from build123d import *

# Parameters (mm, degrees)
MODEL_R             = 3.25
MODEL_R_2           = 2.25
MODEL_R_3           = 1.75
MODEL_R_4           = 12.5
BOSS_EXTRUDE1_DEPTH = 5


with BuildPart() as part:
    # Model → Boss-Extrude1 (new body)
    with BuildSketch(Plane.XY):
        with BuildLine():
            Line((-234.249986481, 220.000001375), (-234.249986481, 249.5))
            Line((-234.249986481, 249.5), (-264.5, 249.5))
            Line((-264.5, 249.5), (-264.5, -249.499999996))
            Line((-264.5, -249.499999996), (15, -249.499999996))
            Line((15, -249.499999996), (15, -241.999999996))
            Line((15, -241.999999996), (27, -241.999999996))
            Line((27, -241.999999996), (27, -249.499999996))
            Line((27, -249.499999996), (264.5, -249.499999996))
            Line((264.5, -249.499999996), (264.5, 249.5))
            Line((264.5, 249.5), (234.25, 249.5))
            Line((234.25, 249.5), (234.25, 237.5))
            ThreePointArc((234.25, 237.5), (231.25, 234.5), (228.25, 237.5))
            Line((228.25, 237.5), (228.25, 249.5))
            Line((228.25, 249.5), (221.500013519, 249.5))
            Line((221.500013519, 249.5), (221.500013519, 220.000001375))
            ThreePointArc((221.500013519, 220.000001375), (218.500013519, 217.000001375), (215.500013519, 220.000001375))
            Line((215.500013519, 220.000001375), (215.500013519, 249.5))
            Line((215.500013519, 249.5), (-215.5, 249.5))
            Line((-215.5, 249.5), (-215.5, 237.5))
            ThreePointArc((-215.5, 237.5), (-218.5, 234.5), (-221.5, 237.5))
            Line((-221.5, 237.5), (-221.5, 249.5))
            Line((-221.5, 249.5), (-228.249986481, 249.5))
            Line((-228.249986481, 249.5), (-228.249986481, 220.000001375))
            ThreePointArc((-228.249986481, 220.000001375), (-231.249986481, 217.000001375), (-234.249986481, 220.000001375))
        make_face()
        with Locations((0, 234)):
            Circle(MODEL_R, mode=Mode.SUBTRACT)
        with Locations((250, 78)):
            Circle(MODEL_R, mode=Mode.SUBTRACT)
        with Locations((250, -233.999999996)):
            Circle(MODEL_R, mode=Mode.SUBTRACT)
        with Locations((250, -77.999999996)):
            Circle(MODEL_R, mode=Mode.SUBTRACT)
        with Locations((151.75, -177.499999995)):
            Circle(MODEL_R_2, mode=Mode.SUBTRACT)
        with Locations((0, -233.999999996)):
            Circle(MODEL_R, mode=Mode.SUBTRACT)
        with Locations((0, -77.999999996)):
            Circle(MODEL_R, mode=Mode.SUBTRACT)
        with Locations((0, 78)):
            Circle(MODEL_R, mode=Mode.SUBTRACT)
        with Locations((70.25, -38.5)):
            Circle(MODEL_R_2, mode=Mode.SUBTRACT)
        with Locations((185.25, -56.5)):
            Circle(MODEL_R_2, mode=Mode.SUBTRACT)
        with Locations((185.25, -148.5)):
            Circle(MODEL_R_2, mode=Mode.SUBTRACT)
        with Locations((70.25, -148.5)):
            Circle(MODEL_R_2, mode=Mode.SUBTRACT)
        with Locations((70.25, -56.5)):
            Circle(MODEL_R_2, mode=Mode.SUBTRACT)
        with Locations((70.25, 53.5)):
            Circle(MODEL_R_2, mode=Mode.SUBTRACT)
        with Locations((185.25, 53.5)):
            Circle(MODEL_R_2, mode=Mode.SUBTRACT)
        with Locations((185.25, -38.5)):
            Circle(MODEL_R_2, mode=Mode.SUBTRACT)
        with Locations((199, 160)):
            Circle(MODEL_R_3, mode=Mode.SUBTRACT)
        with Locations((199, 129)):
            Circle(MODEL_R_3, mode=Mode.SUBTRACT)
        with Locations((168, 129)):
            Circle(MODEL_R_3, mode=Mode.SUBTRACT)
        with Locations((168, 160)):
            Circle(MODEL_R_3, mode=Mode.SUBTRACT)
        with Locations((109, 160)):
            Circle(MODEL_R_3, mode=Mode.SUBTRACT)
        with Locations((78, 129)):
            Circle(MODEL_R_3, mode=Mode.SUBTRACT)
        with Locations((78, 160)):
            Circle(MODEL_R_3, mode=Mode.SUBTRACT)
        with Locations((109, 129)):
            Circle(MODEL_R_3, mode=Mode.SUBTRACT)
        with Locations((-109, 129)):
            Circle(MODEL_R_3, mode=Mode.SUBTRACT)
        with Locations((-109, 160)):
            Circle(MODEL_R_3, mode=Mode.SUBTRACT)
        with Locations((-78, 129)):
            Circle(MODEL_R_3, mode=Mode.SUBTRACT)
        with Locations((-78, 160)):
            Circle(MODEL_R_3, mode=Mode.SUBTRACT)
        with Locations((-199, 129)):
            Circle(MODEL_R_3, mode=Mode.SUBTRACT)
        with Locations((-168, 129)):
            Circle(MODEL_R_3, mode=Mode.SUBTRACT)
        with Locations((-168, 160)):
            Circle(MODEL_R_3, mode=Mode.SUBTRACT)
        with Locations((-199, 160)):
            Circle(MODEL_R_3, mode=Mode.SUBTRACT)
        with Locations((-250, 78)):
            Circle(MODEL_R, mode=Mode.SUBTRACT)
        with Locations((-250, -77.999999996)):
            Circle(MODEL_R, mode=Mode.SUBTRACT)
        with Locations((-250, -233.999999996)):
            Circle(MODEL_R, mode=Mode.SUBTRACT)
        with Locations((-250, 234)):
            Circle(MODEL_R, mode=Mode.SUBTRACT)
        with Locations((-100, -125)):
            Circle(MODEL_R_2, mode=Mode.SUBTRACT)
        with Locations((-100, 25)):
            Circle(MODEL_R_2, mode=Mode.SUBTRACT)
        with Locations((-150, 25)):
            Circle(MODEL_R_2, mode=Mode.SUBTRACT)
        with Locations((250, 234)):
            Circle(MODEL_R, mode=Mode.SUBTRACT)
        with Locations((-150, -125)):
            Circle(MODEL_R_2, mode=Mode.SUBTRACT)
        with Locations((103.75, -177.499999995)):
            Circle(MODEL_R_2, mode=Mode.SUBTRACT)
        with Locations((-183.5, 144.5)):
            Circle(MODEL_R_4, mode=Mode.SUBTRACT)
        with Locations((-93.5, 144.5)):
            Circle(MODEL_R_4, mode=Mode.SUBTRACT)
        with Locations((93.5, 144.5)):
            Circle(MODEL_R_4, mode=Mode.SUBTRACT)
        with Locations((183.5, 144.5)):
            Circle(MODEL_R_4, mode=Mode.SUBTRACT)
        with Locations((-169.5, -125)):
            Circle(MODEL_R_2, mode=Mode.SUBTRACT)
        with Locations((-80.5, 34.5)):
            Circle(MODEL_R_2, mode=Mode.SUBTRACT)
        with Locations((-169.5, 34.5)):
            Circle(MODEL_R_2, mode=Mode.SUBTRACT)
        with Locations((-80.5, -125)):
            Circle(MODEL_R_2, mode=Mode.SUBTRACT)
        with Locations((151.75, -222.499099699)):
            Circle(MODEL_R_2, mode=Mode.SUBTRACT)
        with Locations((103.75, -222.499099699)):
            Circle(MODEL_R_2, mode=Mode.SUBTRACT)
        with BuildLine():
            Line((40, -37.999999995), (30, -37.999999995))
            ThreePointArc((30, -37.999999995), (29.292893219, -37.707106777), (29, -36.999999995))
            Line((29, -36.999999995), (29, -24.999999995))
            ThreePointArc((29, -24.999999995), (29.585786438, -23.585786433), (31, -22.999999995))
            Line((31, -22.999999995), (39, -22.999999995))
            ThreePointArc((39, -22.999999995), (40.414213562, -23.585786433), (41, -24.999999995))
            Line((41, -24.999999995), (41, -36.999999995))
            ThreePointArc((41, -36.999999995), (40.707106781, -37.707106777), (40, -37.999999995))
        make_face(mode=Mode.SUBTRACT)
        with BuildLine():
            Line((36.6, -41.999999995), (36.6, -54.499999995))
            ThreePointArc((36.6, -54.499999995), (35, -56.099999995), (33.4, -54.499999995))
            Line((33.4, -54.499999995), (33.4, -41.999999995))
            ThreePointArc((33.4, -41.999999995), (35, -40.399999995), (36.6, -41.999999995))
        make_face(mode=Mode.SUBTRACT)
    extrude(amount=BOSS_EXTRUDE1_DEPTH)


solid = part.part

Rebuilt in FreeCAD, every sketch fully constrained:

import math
import FreeCAD as App
import Part
import Sketcher
from FreeCAD import Vector
Q = App.Units.Quantity

doc = App.newDocument("Part")
body = doc.addObject("PartDesign::Body", "Body")

sketch1 = body.newObject("Sketcher::SketchObject", "Sketch")
sketch1.AttachmentSupport = (doc.getObject("XY_Plane"), [""])
sketch1.MapMode = "FlatFace"
sketch1.addGeometry([
    Part.LineSegment(Vector(-234.2, 220, 0), Vector(-234.2, 249.5, 0)),
    Part.LineSegment(Vector(-234.2, 249.5, 0), Vector(-264.5, 249.5, 0)),
    Part.LineSegment(Vector(-264.5, 249.5, 0), Vector(-264.5, -249.5, 0)),
    Part.LineSegment(Vector(-264.5, -249.5, 0), Vector(15, -249.5, 0)),
    Part.LineSegment(Vector(15, -249.5, 0), Vector(15, -242, 0)),
    Part.LineSegment(Vector(15, -242, 0), Vector(27, -242, 0)),
    Part.LineSegment(Vector(27, -242, 0), Vector(27, -249.5, 0)),
    Part.LineSegment(Vector(27, -249.5, 0), Vector(264.5, -249.5, 0)),
    Part.LineSegment(Vector(264.5, -249.5, 0), Vector(264.5, 249.5, 0)),
    Part.LineSegment(Vector(264.5, 249.5, 0), Vector(234.2, 249.5, 0)),
    Part.LineSegment(Vector(234.2, 249.5, 0), Vector(234.2, 237.5, 0)),
    Part.ArcOfCircle(Part.Circle(Vector(231.2, 237.5, 0), Vector(0, 0, 1), 3), math.radians(180), math.radians(360)),
    Part.LineSegment(Vector(228.2, 237.5, 0), Vector(228.2, 249.5, 0)),
    Part.LineSegment(Vector(228.2, 249.5, 0), Vector(221.5, 249.5, 0)),
    Part.LineSegment(Vector(221.5, 249.5, 0), Vector(221.5, 220, 0)),
    Part.ArcOfCircle(Part.Circle(Vector(218.5, 220, 0), Vector(0, 0, 1), 3), math.radians(180), math.radians(360)),
    Part.LineSegment(Vector(215.5, 220, 0), Vector(215.5, 249.5, 0)),
    Part.LineSegment(Vector(215.5, 249.5, 0), Vector(-215.5, 249.5, 0)),
    Part.LineSegment(Vector(-215.5, 249.5, 0), Vector(-215.5, 237.5, 0)),
    Part.ArcOfCircle(Part.Circle(Vector(-218.5, 237.5, 0), Vector(0, 0, 1), 3), math.radians(180), math.radians(360)),
    Part.LineSegment(Vector(-221.5, 237.5, 0), Vector(-221.5, 249.5, 0)),
    Part.LineSegment(Vector(-221.5, 249.5, 0), Vector(-228.2, 249.5, 0)),
    Part.LineSegment(Vector(-228.2, 249.5, 0), Vector(-228.2, 220, 0)),
    Part.ArcOfCircle(Part.Circle(Vector(-231.2, 220, 0), Vector(0, 0, 1), 3), math.radians(180), math.radians(360)),
    Part.Circle(Vector(-250, -234, 0), Vector(0, 0, 1), 3.2),
    Part.Circle(Vector(-169.5, -125, 0), Vector(0, 0, 1), 2.2),
    Part.Circle(Vector(-150, -125, 0), Vector(0, 0, 1), 2.2),
    Part.Circle(Vector(0, -234, 0), Vector(0, 0, 1), 3.2),
    Part.Circle(Vector(-100, -125, 0), Vector(0, 0, 1), 2.2),
    Part.Circle(Vector(-80.5, -125, 0), Vector(0, 0, 1), 2.2),
    Part.Circle(Vector(-250, -78, 0), Vector(0, 0, 1), 3.2),
    Part.Circle(Vector(0, -78, 0), Vector(0, 0, 1), 3.2),
    Part.Circle(Vector(103.8, -222.5, 0), Vector(0, 0, 1), 2.2),
    Part.Circle(Vector(70.2, -148.5, 0), Vector(0, 0, 1), 2.2),
    Part.Circle(Vector(103.8, -177.5, 0), Vector(0, 0, 1), 2.2),
    Part.Circle(Vector(151.8, -222.5, 0), Vector(0, 0, 1), 2.2),
    Part.Circle(Vector(250, -234, 0), Vector(0, 0, 1), 3.2),
    Part.Circle(Vector(151.8, -177.5, 0), Vector(0, 0, 1), 2.2),
    Part.Circle(Vector(185.2, -148.5, 0), Vector(0, 0, 1), 2.2),
    Part.ArcOfCircle(Part.Circle(Vector(35, -42, 0), Vector(0, 0, 1), 1.6), math.radians(0), math.radians(180)),
    Part.LineSegment(Vector(36.6, -42, 0), Vector(36.6, -54.5, 0)),
    Part.ArcOfCircle(Part.Circle(Vector(35, -54.5, 0), Vector(0, 0, 1), 1.6), math.radians(180), math.radians(360)),
    Part.LineSegment(Vector(33.4, -54.5, 0), Vector(33.4, -42, 0)),
    Part.ArcOfCircle(Part.Circle(Vector(40, -37, 0), Vector(0, 0, 1), 1), math.radians(-90), math.radians(0)),
    Part.LineSegment(Vector(40, -38, 0), Vector(30, -38, 0)),
    Part.ArcOfCircle(Part.Circle(Vector(30, -37, 0), Vector(0, 0, 1), 1), math.radians(180), math.radians(270)),
    Part.LineSegment(Vector(29, -37, 0), Vector(29, -25, 0)),
    Part.ArcOfCircle(Part.Circle(Vector(31, -25, 0), Vector(0, 0, 1), 2), math.radians(90), math.radians(180)),
    Part.LineSegment(Vector(31, -23, 0), Vector(39, -23, 0)),
    Part.ArcOfCircle(Part.Circle(Vector(39, -25, 0), Vector(0, 0, 1), 2), math.radians(0), math.radians(90)),
    Part.LineSegment(Vector(41, -25, 0), Vector(41, -37, 0)),
    Part.Circle(Vector(70.2, -56.5, 0), Vector(0, 0, 1), 2.2),
    Part.Circle(Vector(70.2, -38.5, 0), Vector(0, 0, 1), 2.2),
    Part.Circle(Vector(250, -78, 0), Vector(0, 0, 1), 3.2),
    Part.Circle(Vector(185.2, -56.5, 0), Vector(0, 0, 1), 2.2),
    Part.Circle(Vector(185.2, -38.5, 0), Vector(0, 0, 1), 2.2),
    Part.Circle(Vector(-150, 25, 0), Vector(0, 0, 1), 2.2),
    Part.Circle(Vector(-169.5, 34.5, 0), Vector(0, 0, 1), 2.2),
    Part.Circle(Vector(-250, 78, 0), Vector(0, 0, 1), 3.2),
    Part.Circle(Vector(-100, 25, 0), Vector(0, 0, 1), 2.2),
    Part.Circle(Vector(-80.5, 34.5, 0), Vector(0, 0, 1), 2.2),
    Part.Circle(Vector(0, 78, 0), Vector(0, 0, 1), 3.2),
    Part.Circle(Vector(-199, 129, 0), Vector(0, 0, 1), 1.8),
    Part.Circle(Vector(-199, 160, 0), Vector(0, 0, 1), 1.8),
    Part.Circle(Vector(-168, 129, 0), Vector(0, 0, 1), 1.8),
    Part.Circle(Vector(-183.5, 144.5, 0), Vector(0, 0, 1), 12.5),
    Part.Circle(Vector(-168, 160, 0), Vector(0, 0, 1), 1.8),
    Part.Circle(Vector(-250, 234, 0), Vector(0, 0, 1), 3.2),
    Part.Circle(Vector(-109, 129, 0), Vector(0, 0, 1), 1.8),
    Part.Circle(Vector(-78, 129, 0), Vector(0, 0, 1), 1.8),
    Part.Circle(Vector(-93.5, 144.5, 0), Vector(0, 0, 1), 12.5),
    Part.Circle(Vector(-109, 160, 0), Vector(0, 0, 1), 1.8),
    Part.Circle(Vector(-78, 160, 0), Vector(0, 0, 1), 1.8),
    Part.Circle(Vector(0, 234, 0), Vector(0, 0, 1), 3.2),
    Part.Circle(Vector(70.2, 53.5, 0), Vector(0, 0, 1), 2.2),
    Part.Circle(Vector(185.2, 53.5, 0), Vector(0, 0, 1), 2.2),
    Part.Circle(Vector(250, 78, 0), Vector(0, 0, 1), 3.2),
    Part.Circle(Vector(78, 129, 0), Vector(0, 0, 1), 1.8),
    Part.Circle(Vector(93.5, 144.5, 0), Vector(0, 0, 1), 12.5),
    Part.Circle(Vector(109, 129, 0), Vector(0, 0, 1), 1.8),
    Part.Circle(Vector(78, 160, 0), Vector(0, 0, 1), 1.8),
    Part.Circle(Vector(109, 160, 0), Vector(0, 0, 1), 1.8),
    Part.Circle(Vector(168, 129, 0), Vector(0, 0, 1), 1.8),
    Part.Circle(Vector(183.5, 144.5, 0), Vector(0, 0, 1), 12.5),
    Part.Circle(Vector(168, 160, 0), Vector(0, 0, 1), 1.8),
    Part.Circle(Vector(199, 129, 0), Vector(0, 0, 1), 1.8),
    Part.Circle(Vector(199, 160, 0), Vector(0, 0, 1), 1.8),
    Part.Circle(Vector(250, 234, 0), Vector(0, 0, 1), 3.2),
], False)
sketch1.addConstraint([
    Sketcher.Constraint("Coincident", 0, 2, 1, 1),
    Sketcher.Constraint("Coincident", 1, 2, 2, 1),
    Sketcher.Constraint("Coincident", 2, 2, 3, 1),
    Sketcher.Constraint("Coincident", 3, 2, 4, 1),
    Sketcher.Constraint("Coincident", 4, 2, 5, 1),
    Sketcher.Constraint("Coincident", 5, 2, 6, 1),
    Sketcher.Constraint("Coincident", 6, 2, 7, 1),
    Sketcher.Constraint("Coincident", 7, 2, 8, 1),
    Sketcher.Constraint("Coincident", 8, 2, 9, 1),
    Sketcher.Constraint("Coincident", 9, 2, 10, 1),
    Sketcher.Constraint("Tangent", 10, 2, 11, 2),
    Sketcher.Constraint("Tangent", 11, 1, 12, 1),
    Sketcher.Constraint("Coincident", 12, 2, 13, 1),
    Sketcher.Constraint("Coincident", 13, 2, 14, 1),
    Sketcher.Constraint("Tangent", 14, 2, 15, 2),
    Sketcher.Constraint("Tangent", 15, 1, 16, 1),
    Sketcher.Constraint("Coincident", 16, 2, 17, 1),
    Sketcher.Constraint("Coincident", 17, 2, 18, 1),
    Sketcher.Constraint("Tangent", 18, 2, 19, 2),
    Sketcher.Constraint("Tangent", 19, 1, 20, 1),
    Sketcher.Constraint("Coincident", 20, 2, 21, 1),
    Sketcher.Constraint("Coincident", 21, 2, 22, 1),
    Sketcher.Constraint("Tangent", 22, 2, 23, 2),
    Sketcher.Constraint("Tangent", 23, 1, 0, 1),
    Sketcher.Constraint("Tangent", 39, 1, 40, 1),
    Sketcher.Constraint("Tangent", 40, 2, 41, 2),
    Sketcher.Constraint("Tangent", 41, 1, 42, 1),
    Sketcher.Constraint("Tangent", 42, 2, 39, 2),
    Sketcher.Constraint("Tangent", 43, 1, 44, 1),
    Sketcher.Constraint("Tangent", 44, 2, 45, 2),
    Sketcher.Constraint("Tangent", 45, 1, 46, 1),
    Sketcher.Constraint("Tangent", 46, 2, 47, 2),
    Sketcher.Constraint("Tangent", 47, 1, 48, 1),
    Sketcher.Constraint("Tangent", 48, 2, 49, 2),
    Sketcher.Constraint("Tangent", 49, 1, 50, 1),
    Sketcher.Constraint("Tangent", 50, 2, 43, 2),
    Sketcher.Constraint("Vertical", 0),
    Sketcher.Constraint("Horizontal", 1),
    Sketcher.Constraint("Vertical", 2),
    Sketcher.Constraint("Horizontal", 3),
    Sketcher.Constraint("Vertical", 4),
    Sketcher.Constraint("Horizontal", 5),
    Sketcher.Constraint("Vertical", 6),
    Sketcher.Constraint("Horizontal", 7),
    Sketcher.Constraint("Vertical", 8),
    Sketcher.Constraint("Horizontal", 9),
    Sketcher.Constraint("Vertical", 10),
    Sketcher.Constraint("Vertical", 12),
    Sketcher.Constraint("Horizontal", 13),
    Sketcher.Constraint("Vertical", 14),
    Sketcher.Constraint("Vertical", 16),
    Sketcher.Constraint("Horizontal", 17),
    Sketcher.Constraint("Vertical", 18),
    Sketcher.Constraint("Vertical", 20),
    Sketcher.Constraint("Horizontal", 21),
    Sketcher.Constraint("Vertical", 22),
    Sketcher.Constraint("Vertical", 40),
    Sketcher.Constraint("Vertical", 42),
    Sketcher.Constraint("Horizontal", 44),
    Sketcher.Constraint("Vertical", 46),
    Sketcher.Constraint("Horizontal", 48),
    Sketcher.Constraint("Vertical", 50),
    Sketcher.Constraint("Equal", 11, 15),
    Sketcher.Constraint("Equal", 15, 19),
    Sketcher.Constraint("Equal", 19, 23),
    Sketcher.Constraint("Equal", 25, 26),
    Sketcher.Constraint("Equal", 24, 27),
    Sketcher.Constraint("Equal", 26, 28),
    Sketcher.Constraint("Equal", 28, 29),
    Sketcher.Constraint("Equal", 27, 30),
    Sketcher.Constraint("Equal", 30, 31),
    Sketcher.Constraint("Equal", 29, 32),
    Sketcher.Constraint("Equal", 32, 33),
    Sketcher.Constraint("Equal", 33, 34),
    Sketcher.Constraint("Equal", 34, 35),
    Sketcher.Constraint("Equal", 31, 36),
    Sketcher.Constraint("Equal", 35, 37),
    Sketcher.Constraint("Equal", 37, 38),
    Sketcher.Constraint("Equal", 43, 45),
    Sketcher.Constraint("Equal", 47, 49),
    Sketcher.Constraint("Equal", 38, 51),
    Sketcher.Constraint("Equal", 51, 52),
    Sketcher.Constraint("Equal", 36, 53),
    Sketcher.Constraint("Equal", 52, 54),
    Sketcher.Constraint("Equal", 54, 55),
    Sketcher.Constraint("Equal", 55, 56),
    Sketcher.Constraint("Equal", 56, 57),
    Sketcher.Constraint("Equal", 53, 58),
    Sketcher.Constraint("Equal", 57, 59),
    Sketcher.Constraint("Equal", 59, 60),
    Sketcher.Constraint("Equal", 58, 61),
    Sketcher.Constraint("Equal", 62, 63),
    Sketcher.Constraint("Equal", 63, 64),
    Sketcher.Constraint("Equal", 64, 66),
    Sketcher.Constraint("Equal", 61, 67),
    Sketcher.Constraint("Equal", 66, 68),
    Sketcher.Constraint("Equal", 68, 69),
    Sketcher.Constraint("Equal", 65, 70),
    Sketcher.Constraint("Equal", 69, 71),
    Sketcher.Constraint("Equal", 71, 72),
    Sketcher.Constraint("Equal", 67, 73),
    Sketcher.Constraint("Equal", 60, 74),
    Sketcher.Constraint("Equal", 74, 75),
    Sketcher.Constraint("Equal", 73, 76),
    Sketcher.Constraint("Equal", 72, 77),
    Sketcher.Constraint("Equal", 70, 78),
    Sketcher.Constraint("Equal", 77, 79),
    Sketcher.Constraint("Equal", 79, 80),
    Sketcher.Constraint("Equal", 80, 81),
    Sketcher.Constraint("Equal", 81, 82),
    Sketcher.Constraint("Equal", 78, 83),
    Sketcher.Constraint("Equal", 82, 84),
    Sketcher.Constraint("Equal", 84, 85),
    Sketcher.Constraint("Equal", 85, 86),
    Sketcher.Constraint("Equal", 76, 87),
    Sketcher.Constraint("Symmetric", 53, 3, 58, 3, -1, 1),
    Sketcher.Constraint("Symmetric", 31, 3, 61, 3, -1, 1),
    Sketcher.Constraint("Symmetric", 36, 3, 67, 3, -1, 1),
    Sketcher.Constraint("Symmetric", 27, 3, 73, 3, -1, 1),
    Sketcher.Constraint("Symmetric", 30, 3, 76, 3, -1, 1),
    Sketcher.Constraint("Symmetric", 24, 3, 87, 3, -1, 1),
    Sketcher.Constraint("Symmetric", 1, 2, 7, 2, -1, 1),
    Sketcher.Constraint("Symmetric", 24, 3, 36, 3, -2),
    Sketcher.Constraint("Symmetric", 30, 3, 53, 3, -2),
    Sketcher.Constraint("Symmetric", 69, 3, 77, 3, -2),
    Sketcher.Constraint("Symmetric", 70, 3, 78, 3, -2),
    Sketcher.Constraint("Symmetric", 68, 3, 79, 3, -2),
    Sketcher.Constraint("Symmetric", 72, 3, 80, 3, -2),
    Sketcher.Constraint("Symmetric", 71, 3, 81, 3, -2),
    Sketcher.Constraint("Symmetric", 64, 3, 82, 3, -2),
    Sketcher.Constraint("Symmetric", 65, 3, 83, 3, -2),
    Sketcher.Constraint("Symmetric", 66, 3, 84, 3, -2),
    Sketcher.Constraint("Symmetric", 62, 3, 85, 3, -2),
    Sketcher.Constraint("Symmetric", 63, 3, 86, 3, -2),
    Sketcher.Constraint("PointOnObject", 27, 3, -2),
    Sketcher.Constraint("PointOnObject", 31, 3, -2),
    Sketcher.Constraint("Horizontal", 11, 3, 19, 3),
    Sketcher.Constraint("Horizontal", 15, 3, 23, 3),
    Sketcher.Constraint("Horizontal", 25, 3, 26, 3),
    Sketcher.Constraint("Horizontal", 24, 3, 27, 3),
    Sketcher.Constraint("Horizontal", 26, 3, 28, 3),
    Sketcher.Constraint("Horizontal", 28, 3, 29, 3),
    Sketcher.Constraint("Horizontal", 30, 3, 31, 3),
    Sketcher.Constraint("Horizontal", 32, 3, 35, 3),
    Sketcher.Constraint("Horizontal", 34, 3, 37, 3),
    Sketcher.Constraint("Horizontal", 33, 3, 38, 3),
    Sketcher.Constraint("Horizontal", 51, 3, 54, 3),
    Sketcher.Constraint("Horizontal", 52, 3, 55, 3),
    Sketcher.Constraint("Horizontal", 56, 3, 59, 3),
    Sketcher.Constraint("Horizontal", 57, 3, 60, 3),
    Sketcher.Constraint("Horizontal", 62, 3, 64, 3),
    Sketcher.Constraint("Horizontal", 63, 3, 66, 3),
    Sketcher.Constraint("Horizontal", 64, 3, 68, 3),
    Sketcher.Constraint("Horizontal", 68, 3, 69, 3),
    Sketcher.Constraint("Horizontal", 65, 3, 70, 3),
    Sketcher.Constraint("Horizontal", 66, 3, 71, 3),
    Sketcher.Constraint("Horizontal", 71, 3, 72, 3),
    Sketcher.Constraint("Horizontal", 74, 3, 75, 3),
    Sketcher.Constraint("Horizontal", 3, 2, 6, 2),
    Sketcher.Constraint("Horizontal", 1, 2, 8, 2),
    Sketcher.Constraint("Horizontal", 9, 2, 12, 2),
    Sketcher.Constraint("Horizontal", 13, 2, 16, 2),
    Sketcher.Constraint("Horizontal", 17, 2, 20, 2),
    Sketcher.Constraint("Vertical", 24, 3, 30, 3),
    Sketcher.Constraint("Vertical", 32, 3, 34, 3),
    Sketcher.Constraint("Vertical", 35, 3, 37, 3),
    Sketcher.Constraint("Vertical", 33, 3, 51, 3),
    Sketcher.Constraint("Vertical", 51, 3, 52, 3),
    Sketcher.Constraint("Vertical", 38, 3, 54, 3),
    Sketcher.Constraint("Vertical", 54, 3, 55, 3),
    Sketcher.Constraint("Vertical", 26, 3, 56, 3),
    Sketcher.Constraint("Vertical", 25, 3, 57, 3),
    Sketcher.Constraint("Vertical", 28, 3, 59, 3),
    Sketcher.Constraint("Vertical", 29, 3, 60, 3),
    Sketcher.Constraint("Vertical", 62, 3, 63, 3),
    Sketcher.Constraint("Vertical", 64, 3, 66, 3),
    Sketcher.Constraint("Vertical", 68, 3, 71, 3),
    Sketcher.Constraint("Vertical", 69, 3, 72, 3),
    Sketcher.Constraint("Vertical", 52, 3, 74, 3),
    Sketcher.Constraint("Vertical", 55, 3, 75, 3),
    Sketcher.Constraint("Equal", 13, 21),
    Sketcher.Constraint("Equal", 5, 10),
    Sketcher.Constraint("Equal", 20, 46),
    Sketcher.Constraint("Diameter", 65, Q("25 mm")),
    Sketcher.Constraint("Radius", 11, Q("3 mm")),
    Sketcher.Constraint("Radius", 43, Q("1 mm")),
    Sketcher.Constraint("Radius", 47, Q("2 mm")),
    Sketcher.Constraint("Diameter", 24, Q("6.5 mm")),
    Sketcher.Constraint("Diameter", 25, Q("4.5 mm")),
    Sketcher.Constraint("Diameter", 62, Q("3.5 mm")),
    Sketcher.Constraint("Radius", 39, Q("1.6 mm")),
    Sketcher.Constraint("DistanceX", 5, 1, 5, 2, Q("12 mm")),
    Sketcher.Constraint("DistanceX", 44, 2, 44, 1, Q("10 mm")),
    Sketcher.Constraint("DistanceY", 2, 2, 2, 1, Q("499 mm")),
    Sketcher.Constraint("DistanceX", 3, 1, 3, 2, Q("279.5 mm")),
    Sketcher.Constraint("DistanceX", 7, 1, 7, 2, Q("237.5 mm")),
    Sketcher.Constraint("DistanceY", 0, 1, 0, 2, Q("29.499999 mm")),
    Sketcher.Constraint("DistanceY", 4, 1, 4, 2, Q("7.5 mm")),
    Sketcher.Constraint("DistanceY", 40, 2, 40, 1, Q("12.5 mm")),
    Sketcher.Constraint("DistanceX", 24, 3, -1, 1, Q("250 mm")),
    Sketcher.Constraint("DistanceY", 24, 3, -1, 1, Q("234 mm")),
    Sketcher.Constraint("DistanceY", 25, 3, -1, 1, Q("125 mm")),
    Sketcher.Constraint("DistanceX", 26, 3, -1, 1, Q("150 mm")),
    Sketcher.Constraint("DistanceX", 28, 3, -1, 1, Q("100 mm")),
    Sketcher.Constraint("DistanceY", 30, 3, -1, 1, Q("78 mm")),
    Sketcher.Constraint("DistanceX", -1, 1, 39, 3, Q("35 mm")),
    Sketcher.Constraint("DistanceY", 39, 3, -1, 1, Q("42 mm")),
    Sketcher.Constraint("DistanceX", -1, 1, 43, 3, Q("40 mm")),
    Sketcher.Constraint("DistanceY", 43, 3, -1, 1, Q("37 mm")),
    Sketcher.Constraint("DistanceY", -1, 1, 56, 3, Q("25 mm")),
    Sketcher.Constraint("DistanceX", 62, 3, -1, 1, Q("199 mm")),
    Sketcher.Constraint("DistanceY", -1, 1, 62, 3, Q("129 mm")),
    Sketcher.Constraint("DistanceY", -1, 1, 63, 3, Q("160 mm")),
    Sketcher.Constraint("DistanceX", 64, 3, -1, 1, Q("168 mm")),
    Sketcher.Constraint("DistanceX", 68, 3, -1, 1, Q("109 mm")),
    Sketcher.Constraint("DistanceX", 69, 3, -1, 1, Q("78 mm")),
    Sketcher.Constraint("DistanceX", 9, 2, 9, 1, Q("30.25 mm")),
    Sketcher.Constraint("DistanceX", 19, 3, -1, 1, Q("218.5 mm")),
    Sketcher.Constraint("DistanceX", 25, 3, -1, 1, Q("169.5 mm")),
    Sketcher.Constraint("DistanceX", 29, 3, -1, 1, Q("80.5 mm")),
    Sketcher.Constraint("DistanceY", 33, 3, -1, 1, Q("148.5 mm")),
    Sketcher.Constraint("DistanceY", 34, 3, -1, 1, Q("177.5 mm")),
    Sketcher.Constraint("DistanceY", 51, 3, -1, 1, Q("56.5 mm")),
    Sketcher.Constraint("DistanceY", 52, 3, -1, 1, Q("38.5 mm")),
    Sketcher.Constraint("DistanceY", -1, 1, 57, 3, Q("34.5 mm")),
    Sketcher.Constraint("DistanceX", 65, 3, -1, 1, Q("183.5 mm")),
    Sketcher.Constraint("DistanceY", -1, 1, 65, 3, Q("144.5 mm")),
    Sketcher.Constraint("DistanceX", 70, 3, -1, 1, Q("93.5 mm")),
    Sketcher.Constraint("DistanceY", -1, 1, 74, 3, Q("53.5 mm")),
    Sketcher.Constraint("DistanceX", -1, 1, 32, 3, Q("103.75 mm")),
    Sketcher.Constraint("DistanceX", -1, 1, 33, 3, Q("70.25 mm")),
    Sketcher.Constraint("DistanceX", -1, 1, 35, 3, Q("151.75 mm")),
    Sketcher.Constraint("DistanceX", -1, 1, 38, 3, Q("185.25 mm")),
    Sketcher.Constraint("DistanceY", 32, 3, -1, 1, Q("222.4991 mm")),
    Sketcher.Constraint("DistanceX", 1, 2, 1, 1, Q("30.250014 mm")),
])
pad1 = body.newObject("PartDesign::Pad", "Pad")
pad1.Profile = sketch1
pad1.Length = 5

doc.recompute()
